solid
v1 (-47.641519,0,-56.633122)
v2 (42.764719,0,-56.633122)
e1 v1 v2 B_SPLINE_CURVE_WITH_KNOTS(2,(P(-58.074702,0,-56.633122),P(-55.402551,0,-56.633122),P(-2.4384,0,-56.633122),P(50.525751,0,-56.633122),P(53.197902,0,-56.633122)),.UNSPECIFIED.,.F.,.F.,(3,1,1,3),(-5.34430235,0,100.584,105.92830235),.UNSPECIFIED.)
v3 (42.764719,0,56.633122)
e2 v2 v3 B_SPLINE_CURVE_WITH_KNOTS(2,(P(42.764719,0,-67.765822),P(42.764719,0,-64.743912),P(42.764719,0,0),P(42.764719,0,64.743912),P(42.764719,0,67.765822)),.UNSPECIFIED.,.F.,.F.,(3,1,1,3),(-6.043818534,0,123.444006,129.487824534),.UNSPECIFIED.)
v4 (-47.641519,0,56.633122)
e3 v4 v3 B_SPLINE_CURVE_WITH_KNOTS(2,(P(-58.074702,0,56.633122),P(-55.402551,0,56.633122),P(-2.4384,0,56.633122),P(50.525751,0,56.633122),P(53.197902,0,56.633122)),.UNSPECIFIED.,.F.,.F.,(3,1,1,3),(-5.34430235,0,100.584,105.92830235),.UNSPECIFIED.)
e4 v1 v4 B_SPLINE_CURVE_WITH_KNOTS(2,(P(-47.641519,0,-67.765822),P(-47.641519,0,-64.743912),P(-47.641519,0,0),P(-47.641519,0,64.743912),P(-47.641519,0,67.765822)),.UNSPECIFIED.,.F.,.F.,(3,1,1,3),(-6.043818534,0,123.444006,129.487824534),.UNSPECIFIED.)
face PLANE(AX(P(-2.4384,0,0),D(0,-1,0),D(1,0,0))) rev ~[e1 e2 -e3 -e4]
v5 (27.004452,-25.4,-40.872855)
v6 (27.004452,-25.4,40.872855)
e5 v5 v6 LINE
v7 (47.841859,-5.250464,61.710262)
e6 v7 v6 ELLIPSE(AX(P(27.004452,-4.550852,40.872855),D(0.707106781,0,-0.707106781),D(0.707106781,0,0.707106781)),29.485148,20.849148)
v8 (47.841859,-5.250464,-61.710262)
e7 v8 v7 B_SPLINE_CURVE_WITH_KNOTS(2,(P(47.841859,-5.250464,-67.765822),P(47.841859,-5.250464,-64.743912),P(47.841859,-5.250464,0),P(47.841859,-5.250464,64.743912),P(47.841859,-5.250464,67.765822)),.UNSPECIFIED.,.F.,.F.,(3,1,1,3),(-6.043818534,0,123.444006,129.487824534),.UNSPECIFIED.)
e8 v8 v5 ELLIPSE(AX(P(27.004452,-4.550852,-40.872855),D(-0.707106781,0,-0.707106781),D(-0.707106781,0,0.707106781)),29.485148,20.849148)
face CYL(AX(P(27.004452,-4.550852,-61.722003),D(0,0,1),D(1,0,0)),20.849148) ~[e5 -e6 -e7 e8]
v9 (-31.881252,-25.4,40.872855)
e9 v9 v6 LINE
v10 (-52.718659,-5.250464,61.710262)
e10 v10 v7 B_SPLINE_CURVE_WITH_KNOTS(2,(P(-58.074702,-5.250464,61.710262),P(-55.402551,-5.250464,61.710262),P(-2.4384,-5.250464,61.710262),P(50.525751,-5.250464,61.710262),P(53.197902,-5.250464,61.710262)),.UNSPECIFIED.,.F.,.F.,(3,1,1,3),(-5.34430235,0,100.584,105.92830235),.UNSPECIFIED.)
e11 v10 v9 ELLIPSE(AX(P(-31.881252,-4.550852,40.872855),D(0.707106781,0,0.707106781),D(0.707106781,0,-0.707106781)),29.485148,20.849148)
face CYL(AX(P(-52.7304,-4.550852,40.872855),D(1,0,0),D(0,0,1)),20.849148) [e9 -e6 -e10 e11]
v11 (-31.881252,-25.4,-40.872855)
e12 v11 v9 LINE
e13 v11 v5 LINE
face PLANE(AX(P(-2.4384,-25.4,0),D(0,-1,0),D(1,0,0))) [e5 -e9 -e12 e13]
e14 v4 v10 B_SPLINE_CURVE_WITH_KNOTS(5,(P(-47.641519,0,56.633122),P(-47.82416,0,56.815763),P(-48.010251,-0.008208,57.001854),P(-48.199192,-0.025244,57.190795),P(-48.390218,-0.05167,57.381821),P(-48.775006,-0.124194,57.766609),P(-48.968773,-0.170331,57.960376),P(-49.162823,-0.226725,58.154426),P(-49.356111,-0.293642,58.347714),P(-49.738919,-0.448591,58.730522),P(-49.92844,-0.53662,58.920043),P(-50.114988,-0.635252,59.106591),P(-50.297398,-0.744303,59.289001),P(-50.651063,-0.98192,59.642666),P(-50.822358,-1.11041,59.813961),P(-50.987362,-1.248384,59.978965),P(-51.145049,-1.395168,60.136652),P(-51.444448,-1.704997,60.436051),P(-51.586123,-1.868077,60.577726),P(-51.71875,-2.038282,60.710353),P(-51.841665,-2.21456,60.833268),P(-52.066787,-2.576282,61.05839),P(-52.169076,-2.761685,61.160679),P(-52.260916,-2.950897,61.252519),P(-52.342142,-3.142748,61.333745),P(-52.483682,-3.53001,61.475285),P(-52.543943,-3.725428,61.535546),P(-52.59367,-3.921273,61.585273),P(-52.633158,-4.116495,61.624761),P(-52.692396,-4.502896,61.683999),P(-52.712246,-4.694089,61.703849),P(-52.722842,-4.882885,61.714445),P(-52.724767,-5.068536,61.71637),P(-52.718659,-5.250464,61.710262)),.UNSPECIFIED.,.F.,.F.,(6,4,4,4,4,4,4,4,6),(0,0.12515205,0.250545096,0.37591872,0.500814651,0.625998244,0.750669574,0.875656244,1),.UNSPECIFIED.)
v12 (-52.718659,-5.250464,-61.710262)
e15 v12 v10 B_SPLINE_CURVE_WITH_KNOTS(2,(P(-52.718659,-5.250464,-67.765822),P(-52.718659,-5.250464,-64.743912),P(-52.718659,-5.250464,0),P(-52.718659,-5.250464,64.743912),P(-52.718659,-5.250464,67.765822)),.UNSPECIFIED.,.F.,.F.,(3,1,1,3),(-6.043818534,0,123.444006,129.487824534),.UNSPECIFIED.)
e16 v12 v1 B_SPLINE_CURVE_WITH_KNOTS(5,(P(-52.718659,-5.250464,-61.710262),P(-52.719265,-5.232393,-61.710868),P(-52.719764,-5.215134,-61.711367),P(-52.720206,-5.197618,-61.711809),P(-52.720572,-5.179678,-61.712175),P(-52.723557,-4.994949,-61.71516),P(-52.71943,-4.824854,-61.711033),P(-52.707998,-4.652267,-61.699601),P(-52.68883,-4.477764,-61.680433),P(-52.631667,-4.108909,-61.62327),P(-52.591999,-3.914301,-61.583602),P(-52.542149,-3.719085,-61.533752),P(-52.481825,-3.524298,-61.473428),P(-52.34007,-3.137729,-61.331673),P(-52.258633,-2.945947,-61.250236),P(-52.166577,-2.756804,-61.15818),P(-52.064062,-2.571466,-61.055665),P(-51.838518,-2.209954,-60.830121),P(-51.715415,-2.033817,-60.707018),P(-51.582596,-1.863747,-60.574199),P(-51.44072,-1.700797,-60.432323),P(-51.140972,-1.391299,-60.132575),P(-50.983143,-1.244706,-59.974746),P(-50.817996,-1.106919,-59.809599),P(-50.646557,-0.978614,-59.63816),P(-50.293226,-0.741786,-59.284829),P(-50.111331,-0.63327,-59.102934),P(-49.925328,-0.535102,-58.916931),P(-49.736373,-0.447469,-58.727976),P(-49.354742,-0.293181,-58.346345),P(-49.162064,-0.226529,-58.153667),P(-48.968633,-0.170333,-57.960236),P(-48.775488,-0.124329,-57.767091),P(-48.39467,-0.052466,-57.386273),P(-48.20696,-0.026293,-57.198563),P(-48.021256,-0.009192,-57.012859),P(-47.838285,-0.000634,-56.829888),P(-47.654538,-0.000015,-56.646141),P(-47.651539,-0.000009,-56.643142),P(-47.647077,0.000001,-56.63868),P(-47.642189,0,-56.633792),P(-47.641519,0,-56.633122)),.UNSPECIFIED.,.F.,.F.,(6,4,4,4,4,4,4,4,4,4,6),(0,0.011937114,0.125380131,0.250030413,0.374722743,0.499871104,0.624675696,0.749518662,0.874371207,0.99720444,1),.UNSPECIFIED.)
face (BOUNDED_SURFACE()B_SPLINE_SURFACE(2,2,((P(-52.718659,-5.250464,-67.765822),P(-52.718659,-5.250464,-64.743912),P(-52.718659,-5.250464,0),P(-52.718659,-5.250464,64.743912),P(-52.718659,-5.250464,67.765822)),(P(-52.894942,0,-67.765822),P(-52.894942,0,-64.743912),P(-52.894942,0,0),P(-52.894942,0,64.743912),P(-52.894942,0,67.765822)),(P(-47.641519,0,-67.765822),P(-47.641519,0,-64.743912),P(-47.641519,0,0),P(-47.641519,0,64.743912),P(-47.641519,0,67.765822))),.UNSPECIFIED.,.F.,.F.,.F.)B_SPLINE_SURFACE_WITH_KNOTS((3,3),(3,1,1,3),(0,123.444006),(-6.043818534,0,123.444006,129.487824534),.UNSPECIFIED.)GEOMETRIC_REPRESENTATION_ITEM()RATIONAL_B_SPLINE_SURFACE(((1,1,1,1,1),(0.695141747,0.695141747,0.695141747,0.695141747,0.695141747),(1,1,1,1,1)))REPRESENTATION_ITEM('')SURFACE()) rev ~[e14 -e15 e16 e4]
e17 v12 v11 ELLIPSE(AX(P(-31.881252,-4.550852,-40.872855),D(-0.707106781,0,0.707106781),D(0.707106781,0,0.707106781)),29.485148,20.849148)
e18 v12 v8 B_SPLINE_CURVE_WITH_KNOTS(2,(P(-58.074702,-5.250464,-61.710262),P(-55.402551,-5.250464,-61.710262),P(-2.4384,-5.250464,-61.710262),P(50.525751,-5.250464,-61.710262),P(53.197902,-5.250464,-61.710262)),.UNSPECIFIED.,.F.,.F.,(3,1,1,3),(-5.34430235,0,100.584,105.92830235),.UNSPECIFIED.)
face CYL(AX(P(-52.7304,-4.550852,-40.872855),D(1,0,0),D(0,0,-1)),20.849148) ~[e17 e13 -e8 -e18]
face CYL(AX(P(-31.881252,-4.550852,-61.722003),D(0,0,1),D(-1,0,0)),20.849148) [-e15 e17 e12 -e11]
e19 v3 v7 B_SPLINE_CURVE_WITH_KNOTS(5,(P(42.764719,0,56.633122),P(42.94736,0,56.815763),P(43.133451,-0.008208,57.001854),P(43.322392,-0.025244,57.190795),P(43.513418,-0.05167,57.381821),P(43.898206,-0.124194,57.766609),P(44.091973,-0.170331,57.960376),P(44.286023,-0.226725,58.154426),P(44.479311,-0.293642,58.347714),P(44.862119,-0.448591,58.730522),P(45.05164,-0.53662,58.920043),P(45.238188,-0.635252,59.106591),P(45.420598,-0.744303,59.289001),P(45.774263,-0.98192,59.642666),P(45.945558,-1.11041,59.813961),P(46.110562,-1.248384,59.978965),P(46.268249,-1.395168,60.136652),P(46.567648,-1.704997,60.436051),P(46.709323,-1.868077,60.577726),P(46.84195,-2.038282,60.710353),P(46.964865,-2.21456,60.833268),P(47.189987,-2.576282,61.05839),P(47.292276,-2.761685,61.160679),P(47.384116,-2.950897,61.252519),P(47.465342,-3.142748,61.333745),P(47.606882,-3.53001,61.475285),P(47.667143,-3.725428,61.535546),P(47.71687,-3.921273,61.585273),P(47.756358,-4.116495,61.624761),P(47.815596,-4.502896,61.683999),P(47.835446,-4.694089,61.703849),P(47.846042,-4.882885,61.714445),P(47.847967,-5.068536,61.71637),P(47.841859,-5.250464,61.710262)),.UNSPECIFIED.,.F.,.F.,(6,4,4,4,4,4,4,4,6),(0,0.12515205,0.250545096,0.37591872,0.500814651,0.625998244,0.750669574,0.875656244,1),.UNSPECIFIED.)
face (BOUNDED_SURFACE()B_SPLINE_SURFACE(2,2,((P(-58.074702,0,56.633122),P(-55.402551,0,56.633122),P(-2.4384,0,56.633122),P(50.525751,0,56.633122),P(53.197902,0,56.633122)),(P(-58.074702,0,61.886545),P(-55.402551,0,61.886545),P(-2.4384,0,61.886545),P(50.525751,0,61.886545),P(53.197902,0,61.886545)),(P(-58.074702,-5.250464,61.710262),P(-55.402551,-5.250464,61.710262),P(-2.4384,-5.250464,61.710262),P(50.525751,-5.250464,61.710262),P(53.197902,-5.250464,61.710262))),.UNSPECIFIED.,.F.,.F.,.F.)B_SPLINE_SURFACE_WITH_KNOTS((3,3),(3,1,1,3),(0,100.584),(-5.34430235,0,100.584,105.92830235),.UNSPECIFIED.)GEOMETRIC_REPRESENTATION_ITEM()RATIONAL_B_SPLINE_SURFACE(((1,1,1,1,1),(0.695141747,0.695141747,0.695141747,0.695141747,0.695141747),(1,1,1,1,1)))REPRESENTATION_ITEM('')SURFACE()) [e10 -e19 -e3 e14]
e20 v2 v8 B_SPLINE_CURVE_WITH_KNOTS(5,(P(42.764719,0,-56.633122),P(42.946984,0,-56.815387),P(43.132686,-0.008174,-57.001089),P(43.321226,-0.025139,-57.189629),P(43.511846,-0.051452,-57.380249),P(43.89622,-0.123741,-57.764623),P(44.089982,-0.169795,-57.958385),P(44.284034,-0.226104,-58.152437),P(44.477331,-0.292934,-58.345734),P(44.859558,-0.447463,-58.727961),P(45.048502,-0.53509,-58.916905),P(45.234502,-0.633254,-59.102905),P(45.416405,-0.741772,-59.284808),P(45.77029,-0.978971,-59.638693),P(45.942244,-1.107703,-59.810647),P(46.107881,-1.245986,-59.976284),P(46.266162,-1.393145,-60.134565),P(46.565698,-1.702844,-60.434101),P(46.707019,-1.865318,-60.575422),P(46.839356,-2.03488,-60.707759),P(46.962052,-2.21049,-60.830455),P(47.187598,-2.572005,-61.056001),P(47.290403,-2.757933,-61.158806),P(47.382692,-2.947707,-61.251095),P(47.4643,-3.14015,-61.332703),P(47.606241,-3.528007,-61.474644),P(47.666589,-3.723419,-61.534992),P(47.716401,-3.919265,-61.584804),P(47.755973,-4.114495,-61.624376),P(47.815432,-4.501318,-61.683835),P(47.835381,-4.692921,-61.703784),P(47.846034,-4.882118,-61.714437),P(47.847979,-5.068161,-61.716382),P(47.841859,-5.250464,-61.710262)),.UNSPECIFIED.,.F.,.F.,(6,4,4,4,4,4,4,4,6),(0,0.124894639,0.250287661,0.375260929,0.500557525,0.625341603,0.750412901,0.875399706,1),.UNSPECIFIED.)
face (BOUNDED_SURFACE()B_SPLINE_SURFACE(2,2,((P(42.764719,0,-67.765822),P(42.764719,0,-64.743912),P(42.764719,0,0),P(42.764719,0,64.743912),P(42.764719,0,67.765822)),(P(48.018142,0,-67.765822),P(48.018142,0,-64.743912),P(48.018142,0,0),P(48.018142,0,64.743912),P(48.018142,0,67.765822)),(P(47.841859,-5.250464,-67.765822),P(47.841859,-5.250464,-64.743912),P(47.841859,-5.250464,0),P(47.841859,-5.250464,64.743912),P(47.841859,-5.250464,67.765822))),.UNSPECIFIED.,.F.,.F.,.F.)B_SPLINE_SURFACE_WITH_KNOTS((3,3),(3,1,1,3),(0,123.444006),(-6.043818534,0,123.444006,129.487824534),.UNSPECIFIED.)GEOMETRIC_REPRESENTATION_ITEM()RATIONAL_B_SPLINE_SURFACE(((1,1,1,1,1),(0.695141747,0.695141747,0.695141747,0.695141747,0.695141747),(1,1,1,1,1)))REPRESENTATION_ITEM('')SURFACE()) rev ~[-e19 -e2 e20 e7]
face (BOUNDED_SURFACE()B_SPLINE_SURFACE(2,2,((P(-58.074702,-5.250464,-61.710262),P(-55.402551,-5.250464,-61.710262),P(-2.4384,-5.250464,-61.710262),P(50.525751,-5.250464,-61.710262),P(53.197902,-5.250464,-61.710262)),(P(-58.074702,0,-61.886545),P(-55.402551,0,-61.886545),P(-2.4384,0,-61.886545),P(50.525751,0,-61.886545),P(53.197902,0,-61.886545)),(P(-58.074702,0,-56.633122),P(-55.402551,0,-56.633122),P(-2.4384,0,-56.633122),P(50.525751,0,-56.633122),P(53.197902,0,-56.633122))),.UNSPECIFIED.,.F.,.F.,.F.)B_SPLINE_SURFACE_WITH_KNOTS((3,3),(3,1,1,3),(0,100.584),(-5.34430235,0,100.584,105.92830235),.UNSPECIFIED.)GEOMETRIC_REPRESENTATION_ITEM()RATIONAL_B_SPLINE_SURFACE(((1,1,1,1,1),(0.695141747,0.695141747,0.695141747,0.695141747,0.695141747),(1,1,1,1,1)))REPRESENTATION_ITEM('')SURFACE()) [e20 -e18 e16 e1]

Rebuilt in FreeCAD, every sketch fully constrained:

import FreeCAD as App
import Part
import Sketcher
Q = App.Units.Quantity


def edges_at(feature, points):
    """Names of the edges that pass closest to the given points."""
    edges = feature.Shape.Edges
    near = lambda p: min(range(len(edges)), key=lambda i: edges[i].distToShape(Part.Vertex(*p))[0])
    return sorted({f"Edge{near(p) + 1}" for p in points})

doc = App.newDocument("Part")
body = doc.addObject("PartDesign::Body", "Body")

# Sketch on XZ plane
sketch1 = body.newObject("Sketcher::SketchObject", "Sketch")
sketch1.AttachmentSupport = (doc.getObject("XZ_Plane"), [""])
sketch1.MapMode = "FlatFace"
sketch1.addGeometry([
    Part.LineSegment(App.Vector(-53, 62, 0), App.Vector(-53, -62, 0)),
    Part.LineSegment(App.Vector(-53, -62, 0), App.Vector(48, -62, 0)),
    Part.LineSegment(App.Vector(48, -62, 0), App.Vector(48, 62, 0)),
    Part.LineSegment(App.Vector(48, 62, 0), App.Vector(-53, 62, 0)),
], False)
sketch1.addConstraint([
    Sketcher.Constraint("Coincident", 0, 2, 1, 1),
    Sketcher.Constraint("Coincident", 1, 2, 2, 1),
    Sketcher.Constraint("Coincident", 2, 2, 3, 1),
    Sketcher.Constraint("Coincident", 3, 2, 0, 1),
    Sketcher.Constraint("Vertical", 0),
    Sketcher.Constraint("Horizontal", 1),
    Sketcher.Constraint("Vertical", 2),
    Sketcher.Constraint("Horizontal", 3),
    Sketcher.Constraint("DistanceX", 1, 1, 1, 2, Q("3.96 in")),
    Sketcher.Constraint("DistanceY", 0, 2, -1, 1, Q("2.4300001 in")),
    Sketcher.Constraint("DistanceY", -1, 1, 2, 2, Q("2.4300001 in")),
    Sketcher.Constraint("DistanceX", 0, 2, -1, 1, Q("2.076 in")),
])
pad1 = body.newObject("PartDesign::Pad", "Pad")
pad1.Profile = sketch1
pad1.Length = Q("1 in")
doc.recompute()

fillet = body.newObject("PartDesign::Fillet", "Fillet")
fillet.Base = (pad1, edges_at(pad1, [
    (47.854, -25.4, 0),
    (-2.438, -25.4, 61.722),
    (-52.73, -25.4, 0),
    (-2.438, -25.4, -61.722),
]))
fillet.Radius = 20.849148
doc.recompute()

fillet2 = body.newObject("PartDesign::Fillet", "Fillet001")
fillet2.Base = (fillet, edges_at(fillet, [
    (47.854, 0, 0),
    (-2.438, 0, 61.722),
    (-52.73, 0, 0),
    (-2.438, 0, -61.722),
    (27.004, -25.4, 0),
    (-2.438, -25.4, -40.873),
    (-2.438, -25.4, 40.873),
    (-31.881, -25.4, 0),
]))
fillet2.Radius = Q("0.2 in")

doc.recompute()
